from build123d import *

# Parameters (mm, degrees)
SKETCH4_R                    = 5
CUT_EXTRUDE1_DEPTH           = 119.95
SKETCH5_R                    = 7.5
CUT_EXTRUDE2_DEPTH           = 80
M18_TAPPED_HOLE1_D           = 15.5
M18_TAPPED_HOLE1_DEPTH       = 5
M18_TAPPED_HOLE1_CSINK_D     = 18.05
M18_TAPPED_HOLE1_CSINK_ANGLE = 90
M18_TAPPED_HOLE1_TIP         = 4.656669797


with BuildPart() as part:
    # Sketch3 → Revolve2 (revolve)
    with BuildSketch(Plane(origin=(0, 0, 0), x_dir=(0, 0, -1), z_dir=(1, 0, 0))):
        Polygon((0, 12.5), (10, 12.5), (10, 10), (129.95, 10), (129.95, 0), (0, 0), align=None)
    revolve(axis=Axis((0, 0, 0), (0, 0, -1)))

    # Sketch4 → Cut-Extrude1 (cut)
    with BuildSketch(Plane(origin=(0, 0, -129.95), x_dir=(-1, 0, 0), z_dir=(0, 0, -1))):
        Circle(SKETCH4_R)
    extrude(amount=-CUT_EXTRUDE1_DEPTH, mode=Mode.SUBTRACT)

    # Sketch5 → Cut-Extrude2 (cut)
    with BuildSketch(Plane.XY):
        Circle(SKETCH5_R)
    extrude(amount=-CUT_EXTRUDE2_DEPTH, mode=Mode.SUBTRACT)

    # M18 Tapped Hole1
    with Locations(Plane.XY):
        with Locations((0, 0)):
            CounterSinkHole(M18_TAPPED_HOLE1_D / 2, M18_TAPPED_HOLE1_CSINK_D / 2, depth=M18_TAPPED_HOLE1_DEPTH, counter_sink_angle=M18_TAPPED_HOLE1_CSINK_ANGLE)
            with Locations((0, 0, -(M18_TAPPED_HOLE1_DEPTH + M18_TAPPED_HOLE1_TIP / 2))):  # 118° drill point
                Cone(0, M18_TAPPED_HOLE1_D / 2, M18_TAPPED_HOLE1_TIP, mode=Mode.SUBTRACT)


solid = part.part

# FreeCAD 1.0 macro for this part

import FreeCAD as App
import Part
import Sketcher

V = App.Vector


def add_polygon(sketch, points):
    """Adds a closed chain of lines whose ends are joined by coincident constraints."""
    first, n = sketch.GeometryCount, len(points)
    for a, b in zip(points, points[1:] + points[:1]):
        sketch.addGeometry(Part.LineSegment(App.Vector(*a, 0), App.Vector(*b, 0)), False)
    for i in range(n):
        sketch.addConstraint(Sketcher.Constraint("Coincident", first + i, 2, first + (i + 1) % n, 1))

doc = App.newDocument("Part")
body = doc.addObject("PartDesign::Body", "Body")

# Sketch on YZ plane
sketch1 = doc.addObject("Sketcher::SketchObject", "Sketch")
body.addObject(sketch1)
sketch1.AttachmentSupport = (doc.YZ_Plane, [""])
sketch1.MapMode = "FlatFace"
add_polygon(sketch1, [(12.5, -10), (12.5, 0), (0, 0), (0, -129.95), (10, -129.95), (10, -10)])  # lines 0-5
sketch1.addConstraint([
    Sketcher.Constraint("Vertical", 0),
    Sketcher.Constraint("Horizontal", 1),
    Sketcher.Constraint("Vertical", 2),
    Sketcher.Constraint("Horizontal", 3),
    Sketcher.Constraint("Vertical", 4),
    Sketcher.Constraint("Horizontal", 5),
    Sketcher.Constraint("Coincident", 1, 2, -1, 1),
    Sketcher.Constraint("Equal", 3, 0),
    Sketcher.Constraint("DistanceX", 3, 1, 3, 2, 10.0),
    Sketcher.Constraint("DistanceX", 1, 2, 1, 1, 12.5),
    Sketcher.Constraint("DistanceY", 2, 2, 2, 1, 129.95),
])
revolution = doc.addObject("PartDesign::Revolution", "Revolution")
body.addObject(revolution)
revolution.Profile = sketch1
revolution.ReferenceAxis = (sketch1, ["V_Axis"])
revolution.Angle = 360

# Sketch on XY plane
sketch2 = doc.addObject("Sketcher::SketchObject", "Sketch001")
body.addObject(sketch2)
sketch2.AttachmentSupport = (doc.XY_Plane, [""])
sketch2.MapMode = "FlatFace"
sketch2.AttachmentOffset = App.Placement(V(0, 0, -129.95), App.Rotation())
sketch2.addGeometry(Part.Circle(V(0, 0, 0), V(0, 0, 1), 5), False)
sketch2.addConstraint([
    Sketcher.Constraint("Coincident", 0, 3, -1, 1),
    Sketcher.Constraint("Diameter", 0, 10.0),
])
pocket1 = doc.addObject("PartDesign::Pocket", "Pocket")
body.addObject(pocket1)
pocket1.Profile = sketch2
pocket1.Length = 119.95
pocket1.Reversed = True

# Sketch on XY plane
sketch3 = doc.addObject("Sketcher::SketchObject", "Sketch002")
body.addObject(sketch3)
sketch3.AttachmentSupport = (doc.XY_Plane, [""])
sketch3.MapMode = "FlatFace"
sketch3.addGeometry(Part.Circle(V(0, 0, 0), V(0, 0, 1), 7.5), False)
sketch3.addConstraint([
    Sketcher.Constraint("Coincident", 0, 3, -1, 1),
    Sketcher.Constraint("Diameter", 0, 15.0),
])
pocket2 = doc.addObject("PartDesign::Pocket", "Pocket001")
body.addObject(pocket2)
pocket2.Profile = sketch3
pocket2.Length = 80

# Sketch on XY plane
sketch4 = doc.addObject("Sketcher::SketchObject", "Sketch003")
body.addObject(sketch4)
sketch4.AttachmentSupport = (doc.XY_Plane, [""])
sketch4.MapMode = "FlatFace"
sketch4.addGeometry(Part.Circle(V(0, 0, 0), V(0, 0, 1), 7.75), False)
sketch4.addConstraint([
    Sketcher.Constraint("Coincident", 0, 3, -1, 1),
    Sketcher.Constraint("Diameter", 0, 15.5),
])
doc.recompute()
hole = doc.addObject("PartDesign::Hole", "Hole")
body.addObject(hole)
hole.Profile = sketch4
hole.ThreadType = "None"
hole.Diameter = 15.5
hole.DepthType = "Dimension"
hole.Depth = 5
hole.DrillPoint = "Angled"
hole.DrillPointAngle = 118
hole.HoleCutType = "Countersink"
hole.HoleCutDiameter = 18.05
hole.HoleCutCountersinkAngle = 90

doc.recompute()
